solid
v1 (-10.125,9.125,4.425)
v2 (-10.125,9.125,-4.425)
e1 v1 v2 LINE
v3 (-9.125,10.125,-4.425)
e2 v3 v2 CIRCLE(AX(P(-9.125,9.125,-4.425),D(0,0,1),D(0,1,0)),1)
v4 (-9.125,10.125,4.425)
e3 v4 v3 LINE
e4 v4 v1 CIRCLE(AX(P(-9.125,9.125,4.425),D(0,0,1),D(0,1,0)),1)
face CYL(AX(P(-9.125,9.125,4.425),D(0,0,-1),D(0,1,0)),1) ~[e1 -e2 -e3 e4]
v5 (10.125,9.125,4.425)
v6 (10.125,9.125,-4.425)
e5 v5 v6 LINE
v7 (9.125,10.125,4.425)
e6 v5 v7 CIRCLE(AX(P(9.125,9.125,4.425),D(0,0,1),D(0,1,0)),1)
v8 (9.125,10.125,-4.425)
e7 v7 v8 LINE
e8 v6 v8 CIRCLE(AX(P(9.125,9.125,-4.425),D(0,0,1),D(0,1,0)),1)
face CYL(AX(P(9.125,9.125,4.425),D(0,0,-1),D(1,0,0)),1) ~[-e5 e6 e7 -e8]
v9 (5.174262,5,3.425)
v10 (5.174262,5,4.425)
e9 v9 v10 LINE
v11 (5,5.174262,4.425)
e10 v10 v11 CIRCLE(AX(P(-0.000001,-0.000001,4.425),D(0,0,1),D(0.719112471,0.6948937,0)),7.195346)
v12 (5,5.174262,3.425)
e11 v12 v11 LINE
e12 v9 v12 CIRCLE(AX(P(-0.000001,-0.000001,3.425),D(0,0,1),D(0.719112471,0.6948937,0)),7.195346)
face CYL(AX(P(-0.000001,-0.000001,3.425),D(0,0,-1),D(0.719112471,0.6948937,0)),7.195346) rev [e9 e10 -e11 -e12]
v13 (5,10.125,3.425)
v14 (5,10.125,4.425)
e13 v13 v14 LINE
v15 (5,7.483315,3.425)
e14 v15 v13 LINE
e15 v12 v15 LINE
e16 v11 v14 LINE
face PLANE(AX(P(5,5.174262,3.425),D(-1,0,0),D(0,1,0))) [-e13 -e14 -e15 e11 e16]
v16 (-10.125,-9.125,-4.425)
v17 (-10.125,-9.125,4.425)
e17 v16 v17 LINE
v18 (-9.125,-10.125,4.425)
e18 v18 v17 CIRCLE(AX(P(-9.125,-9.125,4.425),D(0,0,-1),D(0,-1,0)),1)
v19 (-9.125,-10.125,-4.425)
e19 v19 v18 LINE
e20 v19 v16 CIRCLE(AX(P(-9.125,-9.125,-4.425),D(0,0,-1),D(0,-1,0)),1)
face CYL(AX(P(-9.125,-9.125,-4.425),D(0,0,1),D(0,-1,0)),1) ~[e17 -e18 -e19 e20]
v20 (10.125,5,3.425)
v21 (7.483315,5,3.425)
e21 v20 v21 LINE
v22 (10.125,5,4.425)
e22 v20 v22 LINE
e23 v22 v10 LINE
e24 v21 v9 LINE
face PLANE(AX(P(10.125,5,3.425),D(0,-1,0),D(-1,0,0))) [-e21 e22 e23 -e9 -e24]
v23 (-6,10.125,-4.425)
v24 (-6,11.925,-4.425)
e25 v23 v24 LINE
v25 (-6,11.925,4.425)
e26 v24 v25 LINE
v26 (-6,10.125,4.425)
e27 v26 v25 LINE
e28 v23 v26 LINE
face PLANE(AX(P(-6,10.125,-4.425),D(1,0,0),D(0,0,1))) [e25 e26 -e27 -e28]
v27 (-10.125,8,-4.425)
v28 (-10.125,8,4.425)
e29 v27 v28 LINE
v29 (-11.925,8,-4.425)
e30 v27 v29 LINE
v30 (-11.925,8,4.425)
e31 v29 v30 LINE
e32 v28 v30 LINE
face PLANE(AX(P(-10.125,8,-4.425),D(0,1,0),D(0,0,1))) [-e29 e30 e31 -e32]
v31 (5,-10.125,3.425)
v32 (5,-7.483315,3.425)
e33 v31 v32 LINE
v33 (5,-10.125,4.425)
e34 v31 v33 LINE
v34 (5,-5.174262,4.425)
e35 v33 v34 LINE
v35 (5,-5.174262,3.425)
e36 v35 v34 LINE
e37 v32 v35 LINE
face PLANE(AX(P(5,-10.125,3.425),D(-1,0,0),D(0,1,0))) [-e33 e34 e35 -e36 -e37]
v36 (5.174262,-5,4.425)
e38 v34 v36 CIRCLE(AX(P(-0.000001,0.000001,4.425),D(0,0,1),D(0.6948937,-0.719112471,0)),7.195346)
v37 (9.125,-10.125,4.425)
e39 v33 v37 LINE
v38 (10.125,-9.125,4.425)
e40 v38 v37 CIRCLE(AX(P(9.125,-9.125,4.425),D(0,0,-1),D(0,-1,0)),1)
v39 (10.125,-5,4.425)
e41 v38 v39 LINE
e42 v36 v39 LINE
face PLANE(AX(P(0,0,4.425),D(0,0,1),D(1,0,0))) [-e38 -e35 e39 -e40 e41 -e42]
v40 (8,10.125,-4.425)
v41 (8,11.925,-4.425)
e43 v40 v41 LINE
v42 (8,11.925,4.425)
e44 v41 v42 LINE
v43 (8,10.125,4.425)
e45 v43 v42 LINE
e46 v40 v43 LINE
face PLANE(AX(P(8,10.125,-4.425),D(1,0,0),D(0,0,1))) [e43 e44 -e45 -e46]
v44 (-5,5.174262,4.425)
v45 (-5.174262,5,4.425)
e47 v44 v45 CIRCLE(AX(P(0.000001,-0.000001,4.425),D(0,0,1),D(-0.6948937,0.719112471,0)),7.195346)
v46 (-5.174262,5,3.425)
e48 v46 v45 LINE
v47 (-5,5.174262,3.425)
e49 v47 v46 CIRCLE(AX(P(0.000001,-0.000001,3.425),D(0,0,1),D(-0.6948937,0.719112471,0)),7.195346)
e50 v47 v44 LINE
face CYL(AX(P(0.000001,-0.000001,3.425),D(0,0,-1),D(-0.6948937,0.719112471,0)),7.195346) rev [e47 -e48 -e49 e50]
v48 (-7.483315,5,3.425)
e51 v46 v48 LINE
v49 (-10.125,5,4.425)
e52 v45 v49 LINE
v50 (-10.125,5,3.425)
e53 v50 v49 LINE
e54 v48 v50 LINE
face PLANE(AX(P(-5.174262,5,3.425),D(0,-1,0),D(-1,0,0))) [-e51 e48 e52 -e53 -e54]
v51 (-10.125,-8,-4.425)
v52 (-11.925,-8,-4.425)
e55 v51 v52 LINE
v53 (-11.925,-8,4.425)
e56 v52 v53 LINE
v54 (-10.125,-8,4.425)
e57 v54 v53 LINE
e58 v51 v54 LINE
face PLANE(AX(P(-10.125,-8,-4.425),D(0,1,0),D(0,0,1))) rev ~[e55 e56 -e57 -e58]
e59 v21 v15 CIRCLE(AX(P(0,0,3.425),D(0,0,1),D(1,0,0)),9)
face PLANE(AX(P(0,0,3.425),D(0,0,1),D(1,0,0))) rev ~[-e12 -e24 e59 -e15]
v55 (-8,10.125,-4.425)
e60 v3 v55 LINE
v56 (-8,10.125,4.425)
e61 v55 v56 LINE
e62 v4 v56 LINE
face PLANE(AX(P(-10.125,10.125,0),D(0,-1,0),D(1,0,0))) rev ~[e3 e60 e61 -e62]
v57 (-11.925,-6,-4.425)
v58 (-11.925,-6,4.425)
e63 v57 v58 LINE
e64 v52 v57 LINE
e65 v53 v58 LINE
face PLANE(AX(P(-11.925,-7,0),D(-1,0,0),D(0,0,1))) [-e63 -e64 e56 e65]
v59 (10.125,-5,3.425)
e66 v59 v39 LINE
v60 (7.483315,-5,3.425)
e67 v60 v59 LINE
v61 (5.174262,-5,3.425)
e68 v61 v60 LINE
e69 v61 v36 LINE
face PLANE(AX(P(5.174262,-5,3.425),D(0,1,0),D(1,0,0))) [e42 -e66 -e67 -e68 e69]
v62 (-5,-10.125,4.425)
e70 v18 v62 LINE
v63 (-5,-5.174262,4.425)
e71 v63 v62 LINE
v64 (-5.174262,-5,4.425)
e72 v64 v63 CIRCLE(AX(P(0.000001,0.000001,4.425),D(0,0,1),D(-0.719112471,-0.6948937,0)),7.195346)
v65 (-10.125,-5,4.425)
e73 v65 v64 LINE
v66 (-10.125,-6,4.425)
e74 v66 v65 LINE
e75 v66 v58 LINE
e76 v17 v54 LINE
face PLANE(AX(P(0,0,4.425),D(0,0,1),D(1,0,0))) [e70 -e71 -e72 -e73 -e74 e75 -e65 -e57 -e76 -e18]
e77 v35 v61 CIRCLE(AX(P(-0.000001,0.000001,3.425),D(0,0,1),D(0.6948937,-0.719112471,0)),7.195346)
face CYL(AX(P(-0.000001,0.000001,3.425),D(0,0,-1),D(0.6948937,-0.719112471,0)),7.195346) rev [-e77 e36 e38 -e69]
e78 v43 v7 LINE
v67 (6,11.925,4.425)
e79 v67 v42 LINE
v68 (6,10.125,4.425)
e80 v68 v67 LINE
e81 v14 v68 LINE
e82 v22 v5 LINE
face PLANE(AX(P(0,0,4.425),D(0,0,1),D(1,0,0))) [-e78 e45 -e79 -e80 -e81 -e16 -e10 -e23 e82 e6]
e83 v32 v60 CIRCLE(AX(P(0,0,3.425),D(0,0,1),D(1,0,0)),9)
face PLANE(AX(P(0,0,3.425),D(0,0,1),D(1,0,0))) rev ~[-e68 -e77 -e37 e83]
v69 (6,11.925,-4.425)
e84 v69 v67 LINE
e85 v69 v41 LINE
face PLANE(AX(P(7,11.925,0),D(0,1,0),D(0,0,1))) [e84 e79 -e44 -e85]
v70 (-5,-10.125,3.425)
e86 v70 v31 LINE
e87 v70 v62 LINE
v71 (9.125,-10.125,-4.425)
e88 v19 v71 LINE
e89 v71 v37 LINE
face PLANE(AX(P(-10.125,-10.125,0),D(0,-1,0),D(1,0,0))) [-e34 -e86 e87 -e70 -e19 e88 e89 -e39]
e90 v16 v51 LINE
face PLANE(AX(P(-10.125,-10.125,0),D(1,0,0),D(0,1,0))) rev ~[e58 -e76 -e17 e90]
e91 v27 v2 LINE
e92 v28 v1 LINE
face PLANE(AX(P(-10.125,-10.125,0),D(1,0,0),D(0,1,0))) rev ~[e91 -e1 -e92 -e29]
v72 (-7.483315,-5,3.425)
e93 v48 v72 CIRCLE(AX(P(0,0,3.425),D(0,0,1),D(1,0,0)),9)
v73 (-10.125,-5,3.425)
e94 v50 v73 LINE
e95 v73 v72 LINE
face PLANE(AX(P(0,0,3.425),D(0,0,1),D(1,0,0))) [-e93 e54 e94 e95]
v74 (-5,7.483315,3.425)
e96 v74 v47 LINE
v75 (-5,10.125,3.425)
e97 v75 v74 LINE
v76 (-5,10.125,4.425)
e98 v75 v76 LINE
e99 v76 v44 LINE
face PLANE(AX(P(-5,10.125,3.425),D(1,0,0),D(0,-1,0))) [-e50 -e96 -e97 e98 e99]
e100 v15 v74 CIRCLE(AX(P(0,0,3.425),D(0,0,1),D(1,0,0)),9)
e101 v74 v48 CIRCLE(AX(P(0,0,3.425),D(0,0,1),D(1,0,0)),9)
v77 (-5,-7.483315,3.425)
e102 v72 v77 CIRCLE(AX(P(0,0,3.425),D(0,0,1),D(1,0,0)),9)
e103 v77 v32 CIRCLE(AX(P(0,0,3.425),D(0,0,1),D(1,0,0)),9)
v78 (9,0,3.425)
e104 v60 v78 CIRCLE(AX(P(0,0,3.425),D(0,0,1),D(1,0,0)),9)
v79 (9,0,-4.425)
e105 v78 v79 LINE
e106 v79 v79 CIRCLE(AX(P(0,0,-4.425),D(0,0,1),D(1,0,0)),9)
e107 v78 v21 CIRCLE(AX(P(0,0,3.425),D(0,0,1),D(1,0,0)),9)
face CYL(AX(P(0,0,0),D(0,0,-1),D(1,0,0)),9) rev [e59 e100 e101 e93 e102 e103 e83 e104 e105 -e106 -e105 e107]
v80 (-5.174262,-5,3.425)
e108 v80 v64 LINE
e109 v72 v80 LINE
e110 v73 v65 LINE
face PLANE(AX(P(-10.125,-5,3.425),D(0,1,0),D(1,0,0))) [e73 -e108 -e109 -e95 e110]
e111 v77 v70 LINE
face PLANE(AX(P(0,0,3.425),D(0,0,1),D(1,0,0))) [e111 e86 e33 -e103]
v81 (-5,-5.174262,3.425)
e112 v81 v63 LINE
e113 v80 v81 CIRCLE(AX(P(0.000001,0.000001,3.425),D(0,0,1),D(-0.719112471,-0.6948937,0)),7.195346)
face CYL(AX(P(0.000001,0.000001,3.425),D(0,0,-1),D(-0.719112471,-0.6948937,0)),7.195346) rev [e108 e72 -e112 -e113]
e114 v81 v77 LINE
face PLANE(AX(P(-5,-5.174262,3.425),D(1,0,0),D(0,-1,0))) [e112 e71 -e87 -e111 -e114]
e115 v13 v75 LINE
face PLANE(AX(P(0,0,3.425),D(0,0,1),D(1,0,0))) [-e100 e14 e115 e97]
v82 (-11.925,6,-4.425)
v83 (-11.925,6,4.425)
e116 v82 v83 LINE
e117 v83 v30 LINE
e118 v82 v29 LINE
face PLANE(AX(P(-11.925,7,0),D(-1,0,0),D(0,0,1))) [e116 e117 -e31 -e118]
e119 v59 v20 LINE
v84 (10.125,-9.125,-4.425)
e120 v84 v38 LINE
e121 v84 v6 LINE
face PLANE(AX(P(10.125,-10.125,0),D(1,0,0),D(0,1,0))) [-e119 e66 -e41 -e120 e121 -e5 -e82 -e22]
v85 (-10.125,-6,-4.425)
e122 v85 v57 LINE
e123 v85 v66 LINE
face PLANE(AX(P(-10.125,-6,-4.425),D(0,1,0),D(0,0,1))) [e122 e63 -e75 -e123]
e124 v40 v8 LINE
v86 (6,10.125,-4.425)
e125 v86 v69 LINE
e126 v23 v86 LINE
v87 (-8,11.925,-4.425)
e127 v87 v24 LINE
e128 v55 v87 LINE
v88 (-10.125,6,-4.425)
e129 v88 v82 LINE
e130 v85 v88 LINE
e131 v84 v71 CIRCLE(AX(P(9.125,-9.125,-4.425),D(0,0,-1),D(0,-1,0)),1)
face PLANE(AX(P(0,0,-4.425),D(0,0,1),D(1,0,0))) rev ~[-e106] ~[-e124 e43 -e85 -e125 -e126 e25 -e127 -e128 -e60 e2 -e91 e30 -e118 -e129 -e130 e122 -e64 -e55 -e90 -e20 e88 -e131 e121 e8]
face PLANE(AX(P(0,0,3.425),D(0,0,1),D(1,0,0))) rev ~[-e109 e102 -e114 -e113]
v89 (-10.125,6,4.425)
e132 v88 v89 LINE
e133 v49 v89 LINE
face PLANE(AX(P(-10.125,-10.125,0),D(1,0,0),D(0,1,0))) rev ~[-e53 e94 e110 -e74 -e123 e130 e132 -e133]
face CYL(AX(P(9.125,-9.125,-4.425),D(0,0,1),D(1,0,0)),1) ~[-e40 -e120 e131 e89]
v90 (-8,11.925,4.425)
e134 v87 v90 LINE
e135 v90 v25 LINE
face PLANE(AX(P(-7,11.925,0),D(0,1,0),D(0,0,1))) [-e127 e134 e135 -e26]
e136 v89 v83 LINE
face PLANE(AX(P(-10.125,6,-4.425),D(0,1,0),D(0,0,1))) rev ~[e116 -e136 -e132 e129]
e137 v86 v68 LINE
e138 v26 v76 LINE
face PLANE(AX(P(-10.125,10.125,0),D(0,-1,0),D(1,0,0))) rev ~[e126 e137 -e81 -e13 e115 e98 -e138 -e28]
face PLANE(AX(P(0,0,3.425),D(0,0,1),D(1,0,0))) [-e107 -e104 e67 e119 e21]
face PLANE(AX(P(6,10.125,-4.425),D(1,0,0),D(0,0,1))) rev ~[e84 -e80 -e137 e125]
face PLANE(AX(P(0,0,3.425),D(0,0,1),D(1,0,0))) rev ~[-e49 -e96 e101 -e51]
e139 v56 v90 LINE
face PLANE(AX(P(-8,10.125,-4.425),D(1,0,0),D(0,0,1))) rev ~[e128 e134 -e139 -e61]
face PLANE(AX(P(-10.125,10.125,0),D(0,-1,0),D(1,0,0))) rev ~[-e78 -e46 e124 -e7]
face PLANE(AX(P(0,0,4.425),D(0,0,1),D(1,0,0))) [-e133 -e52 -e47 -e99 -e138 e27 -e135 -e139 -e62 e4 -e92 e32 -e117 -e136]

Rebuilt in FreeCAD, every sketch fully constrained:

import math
import FreeCAD as App
import Part
import Sketcher
from FreeCAD import Vector
Q = App.Units.Quantity


def edges_at(feature, points):
    """Names of the edges that pass closest to the given points."""
    edges = feature.Shape.Edges
    near = lambda p: min(range(len(edges)), key=lambda i: edges[i].distToShape(Part.Vertex(*p))[0])
    return sorted({f"Edge{near(p) + 1}" for p in points})


def add_polygon(sketch, points):
    """Adds a closed chain of lines whose ends are joined by coincident constraints."""
    first, n = sketch.GeometryCount, len(points)
    for a, b in zip(points, points[1:] + points[:1]):
        sketch.addGeometry(Part.LineSegment(App.Vector(*a, 0), App.Vector(*b, 0)), False)
    for i in range(n):
        sketch.addConstraint(Sketcher.Constraint("Coincident", first + i, 2, first + (i + 1) % n, 1))

doc = App.newDocument("Part")
body = doc.addObject("PartDesign::Body", "Body")

# Sketch on XY plane
sketch1 = doc.addObject("Sketcher::SketchObject", "Sketch")
body.addObject(sketch1)
sketch1.AttachmentSupport = (doc.XY_Plane, [""])
sketch1.MapMode = "FlatFace"
add_polygon(sketch1, [(-10, 10), (-10, -10), (10, -10), (10, 10)])  # lines 0-3
sketch1.addGeometry(Part.Circle(Vector(0, 0, 0), Vector(0, 0, 1), 9), False)  # 4
sketch1.addConstraint([
    Sketcher.Constraint("Vertical", 0),
    Sketcher.Constraint("Horizontal", 1),
    Sketcher.Constraint("Vertical", 2),
    Sketcher.Constraint("Horizontal", 3),
    Sketcher.Constraint("Coincident", 4, 3, -1, 1),
    Sketcher.Constraint("Symmetric", 0, 2, 2, 2, -1, 1),
    Sketcher.Constraint("Equal", 3, 0),
    Sketcher.Constraint("Diameter", 4, Q("18 mm")),
    Sketcher.Constraint("DistanceX", 1, 1, 1, 2, Q("20.25 mm")),
])
pad1 = doc.addObject("PartDesign::Pad", "Pad")
body.addObject(pad1)
pad1.Profile = sketch1
pad1.Length = 8.85
pad1.Midplane = True

# Sketch on XY plane
sketch2 = doc.addObject("Sketcher::SketchObject", "Sketch001")
body.addObject(sketch2)
sketch2.AttachmentSupport = (doc.XY_Plane, [""])
sketch2.MapMode = "FlatFace"
sketch2.AttachmentOffset = App.Placement(Vector(0, 0, 3.425), App.Rotation())
sketch2.addGeometry([
    Part.Circle(Vector(0, 0, 0), Vector(0, 0, 1), 9),
    Part.Circle(Vector(0, 0, 0), Vector(0, 0, 1), 7),
], False)
sketch2.addConstraint([
    Sketcher.Constraint("Coincident", 0, 3, -1, 1),
    Sketcher.Constraint("Coincident", 1, 3, -1, 1),
    Sketcher.Constraint("Diameter", 0, Q("18 mm")),
    Sketcher.Constraint("Diameter", 1, Q("14.39069 mm")),
])
pad2 = doc.addObject("PartDesign::Pad", "Pad001")
body.addObject(pad2)
pad2.Profile = sketch2
pad2.Length = 1

# Sketch on XY plane
sketch3 = doc.addObject("Sketcher::SketchObject", "Sketch002")
body.addObject(sketch3)
sketch3.AttachmentSupport = (doc.XY_Plane, [""])
sketch3.MapMode = "FlatFace"
sketch3.AttachmentOffset = App.Placement(Vector(0, 0, 3.425), App.Rotation())
sketch3.addGeometry([
    Part.LineSegment(Vector(-10.12, -5, 0), Vector(-5.17, -5, 0)),  # 0
    Part.ArcOfCircle(Part.Circle(Vector(0, 0, 0), Vector(0, 0, 1), 7.2), math.radians(-135.98), math.radians(-134.02)),  # 1
    Part.LineSegment(Vector(-5, -5.17, 0), Vector(-5, -10.12, 0)),  # 2
    Part.LineSegment(Vector(-5, -10.12, 0), Vector(5, -10.12, 0)),  # 3
    Part.LineSegment(Vector(5, -10.12, 0), Vector(5, -5.17, 0)),  # 4
    Part.ArcOfCircle(Part.Circle(Vector(0, 0, 0), Vector(0, 0, 1), 7.2), math.radians(-45.98), math.radians(-44.02)),  # 5
    Part.LineSegment(Vector(5.17, -5, 0), Vector(10.12, -5, 0)),  # 6
    Part.LineSegment(Vector(10.12, -5, 0), Vector(10.12, 5, 0)),  # 7
    Part.LineSegment(Vector(10.12, 5, 0), Vector(5.17, 5, 0)),  # 8
    Part.ArcOfCircle(Part.Circle(Vector(0, 0, 0), Vector(0, 0, 1), 7.2), math.radians(44.02), math.radians(45.98)),  # 9
    Part.LineSegment(Vector(5, 5.17, 0), Vector(5, 10.12, 0)),  # 10
    Part.LineSegment(Vector(5, 10.12, 0), Vector(-5, 10.12, 0)),  # 11
    Part.LineSegment(Vector(-5, 10.12, 0), Vector(-5, 5.17, 0)),  # 12
    Part.ArcOfCircle(Part.Circle(Vector(0, 0, 0), Vector(0, 0, 1), 7.2), math.radians(134.02), math.radians(135.98)),  # 13
    Part.LineSegment(Vector(-5.17, 5, 0), Vector(-10.12, 5, 0)),  # 14
    Part.LineSegment(Vector(-10.12, 5, 0), Vector(-10.12, -5, 0)),  # 15
], False)
sketch3.addConstraint([
    Sketcher.Constraint("Coincident", 0, 2, 1, 1),
    Sketcher.Constraint("Coincident", 1, 2, 2, 1),
    Sketcher.Constraint("Coincident", 2, 2, 3, 1),
    Sketcher.Constraint("Coincident", 3, 2, 4, 1),
    Sketcher.Constraint("Coincident", 4, 2, 5, 1),
    Sketcher.Constraint("Coincident", 5, 2, 6, 1),
    Sketcher.Constraint("Coincident", 6, 2, 7, 1),
    Sketcher.Constraint("Coincident", 7, 2, 8, 1),
    Sketcher.Constraint("Coincident", 8, 2, 9, 1),
    Sketcher.Constraint("Coincident", 9, 2, 10, 1),
    Sketcher.Constraint("Coincident", 10, 2, 11, 1),
    Sketcher.Constraint("Coincident", 11, 2, 12, 1),
    Sketcher.Constraint("Coincident", 12, 2, 13, 1),
    Sketcher.Constraint("Coincident", 13, 2, 14, 1),
    Sketcher.Constraint("Coincident", 14, 2, 15, 1),
    Sketcher.Constraint("Coincident", 15, 2, 0, 1),
    Sketcher.Constraint("Horizontal", 0),
    Sketcher.Constraint("Vertical", 2),
    Sketcher.Constraint("Horizontal", 3),
    Sketcher.Constraint("Vertical", 4),
    Sketcher.Constraint("Horizontal", 6),
    Sketcher.Constraint("Vertical", 7),
    Sketcher.Constraint("Horizontal", 8),
    Sketcher.Constraint("Vertical", 10),
    Sketcher.Constraint("Horizontal", 11),
    Sketcher.Constraint("Vertical", 12),
    Sketcher.Constraint("Horizontal", 14),
    Sketcher.Constraint("Vertical", 15),
    Sketcher.Constraint("Coincident", 1, 3, -1, 1),
    Sketcher.Constraint("Coincident", 5, 3, -1, 1),
    Sketcher.Constraint("Coincident", 9, 3, -1, 1),
    Sketcher.Constraint("Coincident", 13, 3, -1, 1),
    Sketcher.Constraint("Equal", 1, 5),
    Sketcher.Constraint("Equal", 5, 9),
    Sketcher.Constraint("Equal", 9, 13),
    Sketcher.Constraint("Symmetric", 2, 2, 10, 2, -1, 1),
    Sketcher.Constraint("Symmetric", 6, 2, 14, 2, -1, 1),
    Sketcher.Constraint("Horizontal", 1, 2, 4, 2),
    Sketcher.Constraint("Horizontal", 0, 2, 5, 2),
    Sketcher.Constraint("Horizontal", 9, 2, 12, 2),
    Sketcher.Constraint("Horizontal", 8, 2, 13, 2),
    Sketcher.Constraint("Equal", 14, 2),
    Sketcher.Constraint("Equal", 11, 7),
    Sketcher.Constraint("DistanceX", 3, 1, 3, 2, Q("10 mm")),
    Sketcher.Constraint("DistanceY", 2, 2, -1, 1, Q("10.125 mm")),
    Sketcher.Constraint("Radius", 1, Q("7.195346 mm")),
])
pocket1 = doc.addObject("PartDesign::Pocket", "Pocket")
body.addObject(pocket1)
pocket1.Profile = sketch3
pocket1.Length = 1
pocket1.Reversed = True
doc.recompute()

fillet = doc.addObject("PartDesign::Fillet", "Fillet")
body.addObject(fillet)
fillet.Base = (pocket1, edges_at(pocket1, [
    (-10.125, 10.125, 0),
    (10.125, 10.125, 0),
    (10.125, -10.125, 0),
    (-10.125, -10.125, 0),
]))
fillet.Radius = 1

# Sketch on YZ plane
sketch4 = doc.addObject("Sketcher::SketchObject", "Sketch003")
body.addObject(sketch4)
sketch4.AttachmentSupport = (doc.YZ_Plane, [""])
sketch4.MapMode = "FlatFace"
sketch4.AttachmentOffset = App.Placement(Vector(0, 0, -10.125), App.Rotation())
add_polygon(sketch4, [(8, -4.4), (6, -4.4), (6, 4.4), (8, 4.4)])  # lines 0-3
add_polygon(sketch4, [(-6, -4.4), (-8, -4.4), (-8, 4.4), (-6, 4.4)])  # lines 4-7
sketch4.addConstraint([
    Sketcher.Constraint("Horizontal", 0),
    Sketcher.Constraint("Vertical", 1),
    Sketcher.Constraint("Horizontal", 2),
    Sketcher.Constraint("Vertical", 3),
    Sketcher.Constraint("Horizontal", 4),
    Sketcher.Constraint("Vertical", 5),
    Sketcher.Constraint("Horizontal", 6),
    Sketcher.Constraint("Vertical", 7),
    Sketcher.Constraint("Symmetric", 2, 2, 4, 2, -1, 1),
    Sketcher.Constraint("Symmetric", 0, 2, 6, 2, -1, 1),
    Sketcher.Constraint("Horizontal", 3, 2, 4, 2),
    Sketcher.Constraint("DistanceX", 0, 2, 0, 1, Q("2 mm")),
    Sketcher.Constraint("DistanceX", -1, 1, 0, 2, Q("6 mm")),
    Sketcher.Constraint("DistanceY", 1, 1, 1, 2, Q("8.85 mm")),
])
pad3 = doc.addObject("PartDesign::Pad", "Pad002")
body.addObject(pad3)
pad3.Profile = sketch4
pad3.Length = 1.8
pad3.Reversed = True
doc.recompute()

polarpattern = doc.addObject("PartDesign::PolarPattern", "PolarPattern")
body.addObject(polarpattern)
polarpattern.Originals = [pad3]
polarpattern.Axis = (doc.Z_Axis, [""])
polarpattern.Angle = 90
polarpattern.Occurrences = 2
polarpattern.Reversed = True
body.Tip = polarpattern

doc.recompute()
